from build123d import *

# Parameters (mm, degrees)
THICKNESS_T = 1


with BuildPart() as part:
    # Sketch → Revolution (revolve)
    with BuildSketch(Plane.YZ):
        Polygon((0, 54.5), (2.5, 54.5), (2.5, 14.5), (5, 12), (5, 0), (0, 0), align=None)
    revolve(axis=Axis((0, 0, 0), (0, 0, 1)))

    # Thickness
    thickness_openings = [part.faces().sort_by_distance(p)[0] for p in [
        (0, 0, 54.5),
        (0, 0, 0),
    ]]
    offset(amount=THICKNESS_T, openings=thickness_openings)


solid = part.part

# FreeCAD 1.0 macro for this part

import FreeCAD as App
import Part
import Sketcher
from FreeCAD import Vector
Q = App.Units.Quantity


def faces_at(feature, points):
    """Names of the faces that lie closest to the given points."""
    faces = feature.Shape.Faces
    near = lambda p: min(range(len(faces)), key=lambda i: faces[i].distToShape(Part.Vertex(*p))[0])
    return sorted({f"Face{near(p) + 1}" for p in points})

doc = App.newDocument("Part")
params = doc.addObject("Spreadsheet::Sheet", "Params")
for row, (alias, value) in enumerate([
    ("sketch1_width", "5 mm"),
    ("sketch1_height", "12 mm"),
    ("sketch1_height2", "40 mm"),
    ("sketch1_width2", "2.5 mm"),
    ("revolution_angle", "360 deg"),
    ("thickness_wall", "1 mm"),
], start=1):
    params.set(f"A{row}", alias)
    params.set(f"B{row}", "=" + value)
    params.setAlias(f"B{row}", alias)

body = doc.addObject("PartDesign::Body", "Body")

# Sketch on YZ plane
sketch1 = body.newObject("Sketcher::SketchObject", "Sketch")
sketch1.AttachmentSupport = (doc.getObject("YZ_Plane"), [""])
sketch1.MapMode = "FlatFace"
sketch1.addGeometry(Part.LineSegment(Vector(2.5, 54.5, 0), Vector(0, 54.5, 0)), False)
sketch1.addGeometry(Part.LineSegment(Vector(0, 54.5, 0), Vector(0, 0, 0)), False)
sketch1.addGeometry(Part.LineSegment(Vector(0, 0, 0), Vector(5, 0, 0)), False)
sketch1.addGeometry(Part.LineSegment(Vector(5, 0, 0), Vector(5, 12, 0)), False)
sketch1.addGeometry(Part.LineSegment(Vector(5, 12, 0), Vector(2.5, 14.5, 0)), False)
sketch1.addGeometry(Part.LineSegment(Vector(2.5, 14.5, 0), Vector(2.5, 54.5, 0)), False)
sketch1.addConstraint(Sketcher.Constraint("Coincident", 0, 2, 1, 1))
sketch1.addConstraint(Sketcher.Constraint("Coincident", 1, 2, 2, 1))
sketch1.addConstraint(Sketcher.Constraint("Coincident", 2, 2, 3, 1))
sketch1.addConstraint(Sketcher.Constraint("Coincident", 3, 2, 4, 1))
sketch1.addConstraint(Sketcher.Constraint("Coincident", 4, 2, 5, 1))
sketch1.addConstraint(Sketcher.Constraint("Coincident", 5, 2, 0, 1))
sketch1.addConstraint(Sketcher.Constraint("Horizontal", 0))
sketch1.addConstraint(Sketcher.Constraint("Vertical", 1))
sketch1.addConstraint(Sketcher.Constraint("Horizontal", 2))
sketch1.addConstraint(Sketcher.Constraint("Vertical", 3))
sketch1.addConstraint(Sketcher.Constraint("Vertical", 5))
sketch1.addConstraint(Sketcher.Constraint("Coincident", 1, 2, -1, 1))
sketch1.addConstraint(Sketcher.Constraint("DistanceX", 2, 1, 2, 2, Q("5 mm")))
sketch1.addConstraint(Sketcher.Constraint("DistanceY", 3, 1, 3, 2, Q("12 mm")))
sketch1.addConstraint(Sketcher.Constraint("DistanceY", 5, 1, 5, 2, Q("40 mm")))
sketch1.addConstraint(Sketcher.Constraint("Angle", 4, Q("135 deg")))
sketch1.addConstraint(Sketcher.Constraint("DistanceX", 0, 2, 0, 1, Q("2.5 mm")))
sketch1.setExpression("Constraints[12]", "Params.sketch1_width")
sketch1.setExpression("Constraints[13]", "Params.sketch1_height")
sketch1.setExpression("Constraints[14]", "Params.sketch1_height2")
sketch1.setExpression("Constraints[16]", "Params.sketch1_width2")
revolution = body.newObject("PartDesign::Revolution", "Revolution")
revolution.Profile = sketch1
revolution.ReferenceAxis = (sketch1, ["V_Axis"])
revolution.setExpression("Angle", "Params.revolution_angle")
doc.recompute()

thickness = body.newObject("PartDesign::Thickness", "Thickness")
thickness.Base = (revolution, faces_at(revolution, [(0, 0, 54.5), (0, 0, 0)]))
thickness.setExpression("Value", "Params.thickness_wall")
thickness.Reversed = False
thickness.Join = "Arc"

doc.recompute()
